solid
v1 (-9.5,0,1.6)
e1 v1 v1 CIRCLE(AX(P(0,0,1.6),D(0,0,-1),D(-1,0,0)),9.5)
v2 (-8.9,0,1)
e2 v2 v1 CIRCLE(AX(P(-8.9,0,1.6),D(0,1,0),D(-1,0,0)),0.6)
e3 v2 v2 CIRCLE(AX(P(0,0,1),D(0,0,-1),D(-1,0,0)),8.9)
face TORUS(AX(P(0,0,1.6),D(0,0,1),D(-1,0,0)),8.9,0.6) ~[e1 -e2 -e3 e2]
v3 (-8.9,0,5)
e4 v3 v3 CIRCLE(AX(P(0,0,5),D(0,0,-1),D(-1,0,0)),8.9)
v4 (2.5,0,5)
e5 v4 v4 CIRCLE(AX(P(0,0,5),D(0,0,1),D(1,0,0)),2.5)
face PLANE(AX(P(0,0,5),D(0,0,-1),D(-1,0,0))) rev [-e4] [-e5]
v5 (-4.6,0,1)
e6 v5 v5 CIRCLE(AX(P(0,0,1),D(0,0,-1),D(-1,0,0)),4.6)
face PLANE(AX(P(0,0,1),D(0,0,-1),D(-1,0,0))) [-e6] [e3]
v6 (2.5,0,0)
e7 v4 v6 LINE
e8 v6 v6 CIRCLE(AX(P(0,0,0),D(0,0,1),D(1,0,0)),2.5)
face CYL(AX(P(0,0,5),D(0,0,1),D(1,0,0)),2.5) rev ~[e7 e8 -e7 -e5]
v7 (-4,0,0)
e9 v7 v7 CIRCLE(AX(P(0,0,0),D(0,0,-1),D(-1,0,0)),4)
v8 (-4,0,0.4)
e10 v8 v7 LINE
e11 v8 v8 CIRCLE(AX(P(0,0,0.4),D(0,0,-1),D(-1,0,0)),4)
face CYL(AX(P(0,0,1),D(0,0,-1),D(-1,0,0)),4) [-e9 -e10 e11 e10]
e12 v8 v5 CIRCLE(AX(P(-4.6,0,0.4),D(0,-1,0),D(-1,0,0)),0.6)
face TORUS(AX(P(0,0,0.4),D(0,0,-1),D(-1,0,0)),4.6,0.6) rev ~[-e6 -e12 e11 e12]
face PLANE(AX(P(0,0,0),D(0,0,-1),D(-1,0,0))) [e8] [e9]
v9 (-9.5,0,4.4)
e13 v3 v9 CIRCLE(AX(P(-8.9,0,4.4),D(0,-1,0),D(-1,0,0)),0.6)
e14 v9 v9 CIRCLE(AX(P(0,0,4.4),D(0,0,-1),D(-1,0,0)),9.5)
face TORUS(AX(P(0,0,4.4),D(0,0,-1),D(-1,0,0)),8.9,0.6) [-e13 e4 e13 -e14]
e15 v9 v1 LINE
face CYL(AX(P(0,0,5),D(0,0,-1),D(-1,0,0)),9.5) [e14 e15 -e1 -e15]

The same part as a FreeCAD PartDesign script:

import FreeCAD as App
import Part
import Sketcher
Q = App.Units.Quantity


def edges_at(feature, points):
    """Names of the edges that pass closest to the given points."""
    edges = feature.Shape.Edges
    near = lambda p: min(range(len(edges)), key=lambda i: edges[i].distToShape(Part.Vertex(*p))[0])
    return sorted({f"Edge{near(p) + 1}" for p in points})

doc = App.newDocument("Part")
body = doc.addObject("PartDesign::Body", "Body")

# Sketch on XZ plane
sketch1 = body.newObject("Sketcher::SketchObject", "Sketch")
sketch1.AttachmentSupport = (doc.getObject("XZ_Plane"), [""])
sketch1.MapMode = "FlatFace"
sketch1.addGeometry(Part.LineSegment(App.Vector(-4, 0, 0), App.Vector(0, 0, 0)), False)
sketch1.addGeometry(Part.LineSegment(App.Vector(0, 0, 0), App.Vector(0, 5, 0)), False)
sketch1.addGeometry(Part.LineSegment(App.Vector(0, 5, 0), App.Vector(-9.5, 5, 0)), False)
sketch1.addGeometry(Part.LineSegment(App.Vector(-9.5, 5, 0), App.Vector(-9.5, 1, 0)), False)
sketch1.addGeometry(Part.LineSegment(App.Vector(-9.5, 1, 0), App.Vector(-4, 1, 0)), False)
sketch1.addGeometry(Part.LineSegment(App.Vector(-4, 1, 0), App.Vector(-4, 0, 0)), False)
sketch1.addConstraint(Sketcher.Constraint("Coincident", 0, 2, 1, 1))
sketch1.addConstraint(Sketcher.Constraint("Coincident", 1, 2, 2, 1))
sketch1.addConstraint(Sketcher.Constraint("Coincident", 2, 2, 3, 1))
sketch1.addConstraint(Sketcher.Constraint("Coincident", 3, 2, 4, 1))
sketch1.addConstraint(Sketcher.Constraint("Coincident", 4, 2, 5, 1))
sketch1.addConstraint(Sketcher.Constraint("Coincident", 5, 2, 0, 1))
sketch1.addConstraint(Sketcher.Constraint("Horizontal", 0))
sketch1.addConstraint(Sketcher.Constraint("Vertical", 1))
sketch1.addConstraint(Sketcher.Constraint("Horizontal", 2))
sketch1.addConstraint(Sketcher.Constraint("Vertical", 3))
sketch1.addConstraint(Sketcher.Constraint("Horizontal", 4))
sketch1.addConstraint(Sketcher.Constraint("Vertical", 5))
sketch1.addConstraint(Sketcher.Constraint("Coincident", 0, 2, -1, 1))
sketch1.addConstraint(Sketcher.Constraint("Equal", 0, 3))
sketch1.addConstraint(Sketcher.Constraint("DistanceX", 0, 1, 0, 2, Q("4 mm")))
sketch1.addConstraint(Sketcher.Constraint("DistanceY", 1, 1, 1, 2, Q("5 mm")))
sketch1.addConstraint(Sketcher.Constraint("DistanceX", 2, 2, 2, 1, Q("9.5 mm")))
revolution = body.newObject("PartDesign::Revolution", "Revolution")
revolution.Profile = sketch1
revolution.ReferenceAxis = (sketch1, ["V_Axis"])
revolution.Angle = 360

# Sketch on XY plane
sketch2 = body.newObject("Sketcher::SketchObject", "Sketch001")
sketch2.AttachmentSupport = (doc.getObject("XY_Plane"), [""])
sketch2.MapMode = "FlatFace"
sketch2.AttachmentOffset = App.Placement(App.Vector(0, 0, 5), App.Rotation())
sketch2.addGeometry(Part.Circle(App.Vector(0, 0, 0), App.Vector(0, 0, 1), 2.5), False)
sketch2.addConstraint(Sketcher.Constraint("Coincident", 0, 3, -1, 1))
sketch2.addConstraint(Sketcher.Constraint("Diameter", 0, Q("5 mm")))
pocket1 = body.newObject("PartDesign::Pocket", "Pocket")
pocket1.Profile = sketch2
pocket1.Length = 11.3
doc.recompute()

fillet = body.newObject("PartDesign::Fillet", "Fillet")
fillet.Base = (pocket1, edges_at(pocket1, [(9.5, 0, 5), (9.5, 0, 1), (4, 0, 1)]))
fillet.Radius = 0.6

doc.recompute()
